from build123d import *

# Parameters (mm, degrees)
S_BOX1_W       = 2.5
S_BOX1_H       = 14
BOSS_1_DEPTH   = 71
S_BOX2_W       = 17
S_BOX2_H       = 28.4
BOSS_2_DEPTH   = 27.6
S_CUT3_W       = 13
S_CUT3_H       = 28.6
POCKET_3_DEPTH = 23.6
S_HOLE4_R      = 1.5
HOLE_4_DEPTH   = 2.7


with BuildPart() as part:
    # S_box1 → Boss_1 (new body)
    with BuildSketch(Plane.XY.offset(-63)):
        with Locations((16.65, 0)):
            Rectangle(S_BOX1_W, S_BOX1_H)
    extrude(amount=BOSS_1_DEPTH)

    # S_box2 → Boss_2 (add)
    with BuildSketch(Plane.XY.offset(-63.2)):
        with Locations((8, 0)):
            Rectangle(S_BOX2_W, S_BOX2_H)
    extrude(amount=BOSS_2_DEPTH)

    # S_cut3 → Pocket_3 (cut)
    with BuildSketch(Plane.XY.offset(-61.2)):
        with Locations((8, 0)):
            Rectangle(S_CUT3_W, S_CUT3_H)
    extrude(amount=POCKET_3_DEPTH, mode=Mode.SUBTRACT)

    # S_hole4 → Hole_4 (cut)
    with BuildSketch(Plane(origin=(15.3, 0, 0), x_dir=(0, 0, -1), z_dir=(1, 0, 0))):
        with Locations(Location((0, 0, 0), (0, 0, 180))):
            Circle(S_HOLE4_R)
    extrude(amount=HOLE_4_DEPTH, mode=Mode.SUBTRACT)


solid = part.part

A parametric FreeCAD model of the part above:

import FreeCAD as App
import Part
import Sketcher

doc = App.newDocument("Part")
body = doc.addObject("PartDesign::Body", "Body")

# Sketch on XY plane
sketch1 = doc.addObject("Sketcher::SketchObject", "Sketch")
body.addObject(sketch1)
sketch1.AttachmentSupport = (doc.XY_Plane, [""])
sketch1.MapMode = "FlatFace"
sketch1.AttachmentOffset = App.Placement(App.Vector(0, 0, -63), App.Rotation())
sketch1.addGeometry(Part.LineSegment(App.Vector(15.4, 7, 0), App.Vector(15.4, -7, 0)), False)
sketch1.addGeometry(Part.LineSegment(App.Vector(15.4, -7, 0), App.Vector(17.9, -7, 0)), False)
sketch1.addGeometry(Part.LineSegment(App.Vector(17.9, -7, 0), App.Vector(17.9, 7, 0)), False)
sketch1.addGeometry(Part.LineSegment(App.Vector(17.9, 7, 0), App.Vector(15.4, 7, 0)), False)
sketch1.addConstraint(Sketcher.Constraint("Coincident", 0, 2, 1, 1))
sketch1.addConstraint(Sketcher.Constraint("Coincident", 1, 2, 2, 1))
sketch1.addConstraint(Sketcher.Constraint("Coincident", 2, 2, 3, 1))
sketch1.addConstraint(Sketcher.Constraint("Coincident", 3, 2, 0, 1))
sketch1.addConstraint(Sketcher.Constraint("Vertical", 0))
sketch1.addConstraint(Sketcher.Constraint("Horizontal", 1))
sketch1.addConstraint(Sketcher.Constraint("Vertical", 2))
sketch1.addConstraint(Sketcher.Constraint("Horizontal", 3))
sketch1.addConstraint(Sketcher.Constraint("DistanceY", 0, 2, 0, 1, 14.0))
sketch1.addConstraint(Sketcher.Constraint("DistanceX", 1, 1, 1, 2, 2.5))
sketch1.addConstraint(Sketcher.Constraint("DistanceY", 0, 2, -1, 1, 7.0))
sketch1.addConstraint(Sketcher.Constraint("DistanceX", -1, 1, 0, 2, 15.4))
pad1 = doc.addObject("PartDesign::Pad", "Pad")
body.addObject(pad1)
pad1.Profile = sketch1
pad1.Length = 71

# Sketch on XY plane
sketch2 = doc.addObject("Sketcher::SketchObject", "Sketch001")
body.addObject(sketch2)
sketch2.AttachmentSupport = (doc.XY_Plane, [""])
sketch2.MapMode = "FlatFace"
sketch2.AttachmentOffset = App.Placement(App.Vector(0, 0, -63.2), App.Rotation())
sketch2.addGeometry(Part.LineSegment(App.Vector(0, 14, 0), App.Vector(0, -14, 0)), False)
sketch2.addGeometry(Part.LineSegment(App.Vector(0, -14, 0), App.Vector(16, -14, 0)), False)
sketch2.addGeometry(Part.LineSegment(App.Vector(16, -14, 0), App.Vector(16, 14, 0)), False)
sketch2.addGeometry(Part.LineSegment(App.Vector(16, 14, 0), App.Vector(0, 14, 0)), False)
sketch2.addConstraint(Sketcher.Constraint("Coincident", 0, 2, 1, 1))
sketch2.addConstraint(Sketcher.Constraint("Coincident", 1, 2, 2, 1))
sketch2.addConstraint(Sketcher.Constraint("Coincident", 2, 2, 3, 1))
sketch2.addConstraint(Sketcher.Constraint("Coincident", 3, 2, 0, 1))
sketch2.addConstraint(Sketcher.Constraint("Vertical", 0))
sketch2.addConstraint(Sketcher.Constraint("Horizontal", 1))
sketch2.addConstraint(Sketcher.Constraint("Vertical", 2))
sketch2.addConstraint(Sketcher.Constraint("Horizontal", 3))
sketch2.addConstraint(Sketcher.Constraint("DistanceX", 1, 1, 1, 2, 17.0))
sketch2.addConstraint(Sketcher.Constraint("DistanceY", 0, 2, 0, 1, 28.4))
sketch2.addConstraint(Sketcher.Constraint("DistanceX", 0, 2, -1, 1, 0.5))
sketch2.addConstraint(Sketcher.Constraint("DistanceY", 0, 2, -1, 1, 14.2))
pad2 = doc.addObject("PartDesign::Pad", "Pad001")
body.addObject(pad2)
pad2.Profile = sketch2
pad2.Length = 27.6

# Sketch on XY plane
sketch3 = doc.addObject("Sketcher::SketchObject", "Sketch002")
body.addObject(sketch3)
sketch3.AttachmentSupport = (doc.XY_Plane, [""])
sketch3.MapMode = "FlatFace"
sketch3.AttachmentOffset = App.Placement(App.Vector(0, 0, -61.2), App.Rotation())
sketch3.addGeometry(Part.LineSegment(App.Vector(2, 14, 0), App.Vector(2, -14, 0)), False)
sketch3.addGeometry(Part.LineSegment(App.Vector(2, -14, 0), App.Vector(14, -14, 0)), False)
sketch3.addGeometry(Part.LineSegment(App.Vector(14, -14, 0), App.Vector(14, 14, 0)), False)
sketch3.addGeometry(Part.LineSegment(App.Vector(14, 14, 0), App.Vector(2, 14, 0)), False)
sketch3.addConstraint(Sketcher.Constraint("Coincident", 0, 2, 1, 1))
sketch3.addConstraint(Sketcher.Constraint("Coincident", 1, 2, 2, 1))
sketch3.addConstraint(Sketcher.Constraint("Coincident", 2, 2, 3, 1))
sketch3.addConstraint(Sketcher.Constraint("Coincident", 3, 2, 0, 1))
sketch3.addConstraint(Sketcher.Constraint("Vertical", 0))
sketch3.addConstraint(Sketcher.Constraint("Horizontal", 1))
sketch3.addConstraint(Sketcher.Constraint("Vertical", 2))
sketch3.addConstraint(Sketcher.Constraint("Horizontal", 3))
sketch3.addConstraint(Sketcher.Constraint("DistanceX", 1, 1, 1, 2, 13.0))
sketch3.addConstraint(Sketcher.Constraint("DistanceY", 0, 2, 0, 1, 28.6))
sketch3.addConstraint(Sketcher.Constraint("DistanceX", -1, 1, 0, 2, 1.5))
sketch3.addConstraint(Sketcher.Constraint("DistanceY", 0, 2, -1, 1, 14.3))
pocket1 = doc.addObject("PartDesign::Pocket", "Pocket")
body.addObject(pocket1)
pocket1.Profile = sketch3
pocket1.Length = 23.6
pocket1.Reversed = True

# Sketch on YZ plane
sketch4 = doc.addObject("Sketcher::SketchObject", "Sketch003")
body.addObject(sketch4)
sketch4.AttachmentSupport = (doc.YZ_Plane, [""])
sketch4.MapMode = "FlatFace"
sketch4.AttachmentOffset = App.Placement(App.Vector(0, 0, 15.3), App.Rotation())
sketch4.addGeometry(Part.Circle(App.Vector(0, 0, 0), App.Vector(0, 0, 1), 1.5), False)
sketch4.addConstraint(Sketcher.Constraint("Coincident", 0, 3, -1, 1))
sketch4.addConstraint(Sketcher.Constraint("Diameter", 0, 3.0))
pocket2 = doc.addObject("PartDesign::Pocket", "Pocket001")
body.addObject(pocket2)
pocket2.Profile = sketch4
pocket2.Length = 2.7
pocket2.Reversed = True

doc.recompute()
